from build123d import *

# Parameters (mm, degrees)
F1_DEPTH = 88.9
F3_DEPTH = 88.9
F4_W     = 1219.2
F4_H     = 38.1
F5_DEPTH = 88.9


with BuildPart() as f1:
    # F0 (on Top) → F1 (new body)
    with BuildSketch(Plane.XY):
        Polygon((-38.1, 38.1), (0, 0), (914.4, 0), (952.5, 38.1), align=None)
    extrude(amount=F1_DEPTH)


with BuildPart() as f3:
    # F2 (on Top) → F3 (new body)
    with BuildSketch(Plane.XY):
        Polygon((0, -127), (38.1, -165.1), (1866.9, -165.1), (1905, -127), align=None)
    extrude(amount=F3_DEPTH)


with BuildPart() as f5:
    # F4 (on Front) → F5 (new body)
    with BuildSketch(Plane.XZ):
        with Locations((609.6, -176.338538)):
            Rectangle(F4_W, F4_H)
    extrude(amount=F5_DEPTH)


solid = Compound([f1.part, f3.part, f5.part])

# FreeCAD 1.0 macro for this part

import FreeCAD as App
import Part
import Sketcher

V = App.Vector
Q = App.Units.Quantity

doc = App.newDocument("Part")
body = doc.addObject("PartDesign::Body", "Body")

# Sketch on XY plane
sketch1 = doc.addObject("Sketcher::SketchObject", "Sketch")
body.addObject(sketch1)
sketch1.AttachmentSupport = (doc.XY_Plane, [""])
sketch1.MapMode = "FlatFace"
sketch1.addGeometry([
    Part.LineSegment(V(-38.1, 38.1, 0), V(0, 0, 0)),
    Part.LineSegment(V(0, 0, 0), V(914.4, 0, 0)),
    Part.LineSegment(V(914.4, 0, 0), V(952.5, 38.1, 0)),
    Part.LineSegment(V(952.5, 38.1, 0), V(-38.1, 38.1, 0)),
], False)
sketch1.addConstraint([
    Sketcher.Constraint("Coincident", 0, 2, 1, 1),
    Sketcher.Constraint("Coincident", 1, 2, 2, 1),
    Sketcher.Constraint("Coincident", 2, 2, 3, 1),
    Sketcher.Constraint("Coincident", 3, 2, 0, 1),
    Sketcher.Constraint("Horizontal", 1),
    Sketcher.Constraint("Horizontal", 3),
    Sketcher.Constraint("Coincident", 0, 2, -1, 1),
    Sketcher.Constraint("Perpendicular", 0, 2),
    Sketcher.Constraint("Equal", 0, 2),
    Sketcher.Constraint("DistanceX", 1, 1, 1, 2, Q("36 in")),
    Sketcher.Constraint("DistanceX", 3, 2, 3, 1, Q("39 in")),
])
pad1 = doc.addObject("PartDesign::Pad", "Pad")
body.addObject(pad1)
pad1.Profile = sketch1
pad1.Length = Q("3.5 in")
body2 = doc.addObject("PartDesign::Body", "Body001")

# Sketch on XY plane
sketch2 = doc.addObject("Sketcher::SketchObject", "Sketch001")
body2.addObject(sketch2)
sketch2.AttachmentSupport = (doc.getObject("XY_Plane001"), [""])
sketch2.MapMode = "FlatFace"
sketch2.addGeometry([
    Part.LineSegment(V(0, -127, 0), V(38.1, -165.1, 0)),
    Part.LineSegment(V(38.1, -165.1, 0), V(1866.9, -165.1, 0)),
    Part.LineSegment(V(1866.9, -165.1, 0), V(1905, -127, 0)),
    Part.LineSegment(V(1905, -127, 0), V(0, -127, 0)),
], False)
sketch2.addConstraint([
    Sketcher.Constraint("Coincident", 0, 2, 1, 1),
    Sketcher.Constraint("Coincident", 1, 2, 2, 1),
    Sketcher.Constraint("Coincident", 2, 2, 3, 1),
    Sketcher.Constraint("Coincident", 3, 2, 0, 1),
    Sketcher.Constraint("Horizontal", 1),
    Sketcher.Constraint("Horizontal", 3),
    Sketcher.Constraint("PointOnObject", 3, 2, -2),
    Sketcher.Constraint("Perpendicular", 0, 2),
    Sketcher.Constraint("Equal", 0, 2),
    Sketcher.Constraint("DistanceX", 1, 1, 1, 2, Q("72 in")),
    Sketcher.Constraint("DistanceX", 3, 2, 3, 1, Q("75 in")),
    Sketcher.Constraint("DistanceY", 2, 2, -1, 1, Q("5 in")),
])
pad2 = doc.addObject("PartDesign::Pad", "Pad001")
body2.addObject(pad2)
pad2.Profile = sketch2
pad2.Length = Q("3.5 in")
body3 = doc.addObject("PartDesign::Body", "Body002")

# Sketch on XZ plane
sketch3 = doc.addObject("Sketcher::SketchObject", "Sketch002")
body3.addObject(sketch3)
sketch3.AttachmentSupport = (doc.getObject("XZ_Plane002"), [""])
sketch3.MapMode = "FlatFace"
sketch3.addGeometry([
    Part.LineSegment(V(0, -157.288538, 0), V(0, -195.388538, 0)),
    Part.LineSegment(V(0, -195.388538, 0), V(1219.2, -195.388538, 0)),
    Part.LineSegment(V(1219.2, -195.388538, 0), V(1219.2, -157.288538, 0)),
    Part.LineSegment(V(1219.2, -157.288538, 0), V(0, -157.288538, 0)),
], False)
sketch3.addConstraint([
    Sketcher.Constraint("Coincident", 0, 2, 1, 1),
    Sketcher.Constraint("Coincident", 1, 2, 2, 1),
    Sketcher.Constraint("Coincident", 2, 2, 3, 1),
    Sketcher.Constraint("Coincident", 3, 2, 0, 1),
    Sketcher.Constraint("Vertical", 0),
    Sketcher.Constraint("Horizontal", 1),
    Sketcher.Constraint("Vertical", 2),
    Sketcher.Constraint("Horizontal", 3),
    Sketcher.Constraint("PointOnObject", 0, 2, -2),
    Sketcher.Constraint("DistanceX", 1, 1, 1, 2, Q("48 in")),
    Sketcher.Constraint("DistanceY", 0, 2, 0, 1, Q("1.5 in")),
    Sketcher.Constraint("DistanceY", 0, 2, -1, 1, 195.388538),
])
pad3 = doc.addObject("PartDesign::Pad", "Pad002")
body3.addObject(pad3)
pad3.Profile = sketch3
pad3.Length = Q("3.5 in")

doc.recompute()
